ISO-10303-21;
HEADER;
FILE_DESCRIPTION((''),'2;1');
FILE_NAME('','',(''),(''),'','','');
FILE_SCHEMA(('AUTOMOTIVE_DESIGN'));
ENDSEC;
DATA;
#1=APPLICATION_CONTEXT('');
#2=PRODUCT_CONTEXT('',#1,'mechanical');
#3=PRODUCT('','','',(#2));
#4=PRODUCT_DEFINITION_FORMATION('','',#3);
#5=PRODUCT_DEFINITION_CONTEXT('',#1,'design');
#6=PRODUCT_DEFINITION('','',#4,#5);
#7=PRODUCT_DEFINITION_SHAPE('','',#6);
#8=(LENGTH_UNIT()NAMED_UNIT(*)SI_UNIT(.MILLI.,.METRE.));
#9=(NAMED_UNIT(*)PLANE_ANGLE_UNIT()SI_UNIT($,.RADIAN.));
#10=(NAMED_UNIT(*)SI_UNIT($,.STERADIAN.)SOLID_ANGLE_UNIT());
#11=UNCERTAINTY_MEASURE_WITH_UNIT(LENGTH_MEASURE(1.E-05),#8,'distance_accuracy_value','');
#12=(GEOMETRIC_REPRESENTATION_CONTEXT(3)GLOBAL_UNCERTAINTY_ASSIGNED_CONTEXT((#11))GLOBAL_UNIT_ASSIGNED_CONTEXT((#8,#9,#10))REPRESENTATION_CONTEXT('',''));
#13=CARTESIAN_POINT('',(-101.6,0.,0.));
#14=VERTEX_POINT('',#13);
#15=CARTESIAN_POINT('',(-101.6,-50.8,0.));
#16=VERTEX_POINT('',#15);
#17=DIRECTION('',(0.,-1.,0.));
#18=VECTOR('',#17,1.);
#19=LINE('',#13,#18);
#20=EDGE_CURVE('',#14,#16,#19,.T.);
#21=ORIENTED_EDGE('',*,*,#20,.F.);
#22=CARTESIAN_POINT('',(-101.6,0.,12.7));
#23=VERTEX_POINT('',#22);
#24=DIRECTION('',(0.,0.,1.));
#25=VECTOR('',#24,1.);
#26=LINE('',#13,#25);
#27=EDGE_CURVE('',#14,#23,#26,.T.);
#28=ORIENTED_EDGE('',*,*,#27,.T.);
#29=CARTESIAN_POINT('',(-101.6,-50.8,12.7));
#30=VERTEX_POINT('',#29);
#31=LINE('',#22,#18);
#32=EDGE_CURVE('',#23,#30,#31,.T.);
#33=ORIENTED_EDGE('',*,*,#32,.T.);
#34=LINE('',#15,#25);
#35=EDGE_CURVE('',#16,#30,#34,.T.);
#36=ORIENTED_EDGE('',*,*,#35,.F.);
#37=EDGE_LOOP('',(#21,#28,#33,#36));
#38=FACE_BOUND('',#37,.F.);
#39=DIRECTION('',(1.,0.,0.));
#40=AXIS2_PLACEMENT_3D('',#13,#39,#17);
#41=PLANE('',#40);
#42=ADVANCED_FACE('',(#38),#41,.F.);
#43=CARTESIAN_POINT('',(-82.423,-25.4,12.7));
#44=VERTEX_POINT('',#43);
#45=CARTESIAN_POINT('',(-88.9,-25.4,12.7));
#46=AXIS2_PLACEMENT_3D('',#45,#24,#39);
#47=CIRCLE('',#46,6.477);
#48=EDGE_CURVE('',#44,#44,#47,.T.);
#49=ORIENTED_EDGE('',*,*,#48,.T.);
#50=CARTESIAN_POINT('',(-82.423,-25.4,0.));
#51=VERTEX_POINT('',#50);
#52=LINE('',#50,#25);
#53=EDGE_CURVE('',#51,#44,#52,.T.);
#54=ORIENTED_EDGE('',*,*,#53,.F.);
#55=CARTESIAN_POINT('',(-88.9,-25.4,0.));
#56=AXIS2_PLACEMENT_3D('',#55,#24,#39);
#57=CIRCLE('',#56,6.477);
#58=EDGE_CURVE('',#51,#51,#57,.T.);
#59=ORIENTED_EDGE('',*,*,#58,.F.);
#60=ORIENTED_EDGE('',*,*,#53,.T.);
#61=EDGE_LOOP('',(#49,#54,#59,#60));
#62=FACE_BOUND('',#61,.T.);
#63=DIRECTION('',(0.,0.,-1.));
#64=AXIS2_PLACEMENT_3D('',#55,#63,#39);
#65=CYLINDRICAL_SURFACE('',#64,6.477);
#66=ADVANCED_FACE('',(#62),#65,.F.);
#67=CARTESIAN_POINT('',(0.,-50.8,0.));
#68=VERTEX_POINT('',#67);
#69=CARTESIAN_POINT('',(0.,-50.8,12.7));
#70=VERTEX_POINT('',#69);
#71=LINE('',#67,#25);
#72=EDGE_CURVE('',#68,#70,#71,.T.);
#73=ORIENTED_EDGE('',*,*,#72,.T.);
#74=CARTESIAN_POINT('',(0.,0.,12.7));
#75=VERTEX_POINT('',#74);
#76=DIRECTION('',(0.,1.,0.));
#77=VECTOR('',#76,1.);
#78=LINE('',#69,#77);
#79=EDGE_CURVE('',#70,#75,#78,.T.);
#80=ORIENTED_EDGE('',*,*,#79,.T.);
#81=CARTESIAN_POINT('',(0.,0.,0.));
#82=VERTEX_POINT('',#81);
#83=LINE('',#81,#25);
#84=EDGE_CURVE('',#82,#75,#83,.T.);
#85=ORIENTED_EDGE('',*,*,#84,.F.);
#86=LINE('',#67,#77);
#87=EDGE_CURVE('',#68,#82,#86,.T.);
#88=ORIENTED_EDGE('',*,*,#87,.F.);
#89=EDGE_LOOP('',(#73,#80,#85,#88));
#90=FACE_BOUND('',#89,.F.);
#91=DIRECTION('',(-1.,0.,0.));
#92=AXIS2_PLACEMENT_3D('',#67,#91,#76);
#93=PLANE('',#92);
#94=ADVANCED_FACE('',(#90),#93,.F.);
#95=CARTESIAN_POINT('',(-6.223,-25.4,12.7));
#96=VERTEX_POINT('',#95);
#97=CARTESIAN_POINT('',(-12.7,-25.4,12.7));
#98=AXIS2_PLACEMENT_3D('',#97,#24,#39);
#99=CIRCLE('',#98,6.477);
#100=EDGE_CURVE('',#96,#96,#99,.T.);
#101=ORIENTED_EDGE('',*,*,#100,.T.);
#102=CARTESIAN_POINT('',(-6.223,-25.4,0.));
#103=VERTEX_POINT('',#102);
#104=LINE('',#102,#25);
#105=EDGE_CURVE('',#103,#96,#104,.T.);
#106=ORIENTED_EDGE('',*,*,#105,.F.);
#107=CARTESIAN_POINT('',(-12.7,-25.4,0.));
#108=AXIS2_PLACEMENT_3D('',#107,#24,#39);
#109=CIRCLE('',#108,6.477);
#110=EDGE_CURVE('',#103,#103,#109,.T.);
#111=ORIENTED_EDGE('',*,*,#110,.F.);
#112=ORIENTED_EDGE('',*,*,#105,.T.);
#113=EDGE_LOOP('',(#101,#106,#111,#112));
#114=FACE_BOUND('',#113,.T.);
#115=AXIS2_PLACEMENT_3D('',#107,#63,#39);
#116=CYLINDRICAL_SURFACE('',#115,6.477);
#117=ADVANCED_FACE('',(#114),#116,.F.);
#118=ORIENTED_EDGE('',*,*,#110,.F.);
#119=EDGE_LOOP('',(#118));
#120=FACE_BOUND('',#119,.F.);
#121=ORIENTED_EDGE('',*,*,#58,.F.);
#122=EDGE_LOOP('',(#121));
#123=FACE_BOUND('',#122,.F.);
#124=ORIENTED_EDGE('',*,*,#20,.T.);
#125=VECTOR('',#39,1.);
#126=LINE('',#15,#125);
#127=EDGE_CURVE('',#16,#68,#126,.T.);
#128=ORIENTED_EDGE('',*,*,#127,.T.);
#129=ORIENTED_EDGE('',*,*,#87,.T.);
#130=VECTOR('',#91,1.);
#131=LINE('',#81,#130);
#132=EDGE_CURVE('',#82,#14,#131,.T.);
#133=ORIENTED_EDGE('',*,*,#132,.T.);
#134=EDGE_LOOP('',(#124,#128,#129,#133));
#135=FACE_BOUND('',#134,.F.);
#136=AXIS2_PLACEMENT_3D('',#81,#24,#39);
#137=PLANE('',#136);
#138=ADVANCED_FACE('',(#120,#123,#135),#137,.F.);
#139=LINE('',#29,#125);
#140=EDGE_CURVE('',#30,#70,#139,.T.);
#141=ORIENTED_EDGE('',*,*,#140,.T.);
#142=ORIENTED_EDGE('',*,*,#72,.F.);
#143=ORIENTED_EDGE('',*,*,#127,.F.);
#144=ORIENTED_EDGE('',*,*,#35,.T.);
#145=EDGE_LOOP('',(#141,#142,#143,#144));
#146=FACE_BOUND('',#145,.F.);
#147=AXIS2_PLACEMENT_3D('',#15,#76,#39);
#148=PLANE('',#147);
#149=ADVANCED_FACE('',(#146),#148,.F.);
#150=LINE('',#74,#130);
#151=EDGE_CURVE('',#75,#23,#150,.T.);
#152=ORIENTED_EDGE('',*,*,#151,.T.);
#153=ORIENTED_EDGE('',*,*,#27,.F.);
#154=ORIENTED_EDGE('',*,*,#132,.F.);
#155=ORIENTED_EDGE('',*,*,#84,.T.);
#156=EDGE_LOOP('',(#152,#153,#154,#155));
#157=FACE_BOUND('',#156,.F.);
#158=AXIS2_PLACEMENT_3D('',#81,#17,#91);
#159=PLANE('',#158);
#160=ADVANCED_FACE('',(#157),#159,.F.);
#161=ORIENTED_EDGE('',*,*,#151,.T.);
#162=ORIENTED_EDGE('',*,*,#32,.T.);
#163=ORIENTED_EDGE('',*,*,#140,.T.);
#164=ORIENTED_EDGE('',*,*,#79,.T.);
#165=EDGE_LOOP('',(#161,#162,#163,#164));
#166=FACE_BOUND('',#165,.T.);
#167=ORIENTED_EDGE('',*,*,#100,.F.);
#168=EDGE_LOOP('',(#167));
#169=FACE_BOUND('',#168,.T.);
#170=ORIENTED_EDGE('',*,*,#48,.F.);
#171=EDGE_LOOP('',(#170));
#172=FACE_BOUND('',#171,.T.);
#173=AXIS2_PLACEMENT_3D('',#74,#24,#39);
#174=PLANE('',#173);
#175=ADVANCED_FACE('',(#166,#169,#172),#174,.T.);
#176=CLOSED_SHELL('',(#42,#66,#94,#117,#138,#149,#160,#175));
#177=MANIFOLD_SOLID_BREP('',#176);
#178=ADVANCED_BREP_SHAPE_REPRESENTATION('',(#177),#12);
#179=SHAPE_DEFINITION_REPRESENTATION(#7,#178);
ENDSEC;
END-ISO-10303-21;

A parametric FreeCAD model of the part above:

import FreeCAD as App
import Part
import Sketcher
Q = App.Units.Quantity


def add_polygon(sketch, points):
    """Adds a closed chain of lines whose ends are joined by coincident constraints."""
    first, n = sketch.GeometryCount, len(points)
    for a, b in zip(points, points[1:] + points[:1]):
        sketch.addGeometry(Part.LineSegment(App.Vector(*a, 0), App.Vector(*b, 0)), False)
    for i in range(n):
        sketch.addConstraint(Sketcher.Constraint("Coincident", first + i, 2, first + (i + 1) % n, 1))

doc = App.newDocument("Part")
params = doc.addObject("Spreadsheet::Sheet", "Params")
for row, (alias, value) in enumerate([
    ("sketch1_diameter", "0.51 in"),
    ("sketch1_width", "4 in"),
    ("sketch1_height", "2 in"),
    ("pad1_length", "0.5 in"),
], start=1):
    params.set(f"A{row}", alias)
    params.set(f"B{row}", "=" + value)
    params.setAlias(f"B{row}", alias)

body = doc.addObject("PartDesign::Body", "Body")

sketch1 = body.newObject("Sketcher::SketchObject", "Sketch")
sketch1.AttachmentSupport = (doc.getObject("XY_Plane"), [""])
sketch1.MapMode = "FlatFace"
add_polygon(sketch1, [(0, -50.8), (0, 0), (-101.6, 0), (-101.6, -50.8)])
sketch1.addGeometry(Part.Circle(App.Vector(-88.9, -25.4, 0), App.Vector(0, 0, 1), 6.477), False)
sketch1.addGeometry(Part.Circle(App.Vector(-12.7, -25.4, 0), App.Vector(0, 0, 1), 6.477), False)
sketch1.addConstraint([
    Sketcher.Constraint("Vertical", 0),
    Sketcher.Constraint("Horizontal", 1),
    Sketcher.Constraint("Vertical", 2),
    Sketcher.Constraint("Horizontal", 3),
    Sketcher.Constraint("Coincident", 0, 2, -1, 1),
    Sketcher.Constraint("Equal", 4, 5),
    Sketcher.Constraint("Horizontal", 4, 3, 5, 3),
    Sketcher.Constraint("Diameter", 4, Q("0.51 in")),
    Sketcher.Constraint("DistanceX", 1, 2, 1, 1, Q("4 in")),
    Sketcher.Constraint("DistanceY", 0, 1, 0, 2, Q("2 in")),
    Sketcher.Constraint("DistanceY", 4, 3, -1, 1, Q("1 in")),
    Sketcher.Constraint("DistanceX", 5, 3, -1, 1, Q("0.5 in")),
    Sketcher.Constraint("DistanceX", 1, 2, 4, 3, Q("0.5 in")),
])
sketch1.setExpression("Constraints[11]", "Params.sketch1_diameter")
sketch1.setExpression("Constraints[12]", "Params.sketch1_width")
sketch1.setExpression("Constraints[13]", "Params.sketch1_height")
pad1 = body.newObject("PartDesign::Pad", "Pad")
pad1.Profile = sketch1
pad1.setExpression("Length", "Params.pad1_length")

doc.recompute()
